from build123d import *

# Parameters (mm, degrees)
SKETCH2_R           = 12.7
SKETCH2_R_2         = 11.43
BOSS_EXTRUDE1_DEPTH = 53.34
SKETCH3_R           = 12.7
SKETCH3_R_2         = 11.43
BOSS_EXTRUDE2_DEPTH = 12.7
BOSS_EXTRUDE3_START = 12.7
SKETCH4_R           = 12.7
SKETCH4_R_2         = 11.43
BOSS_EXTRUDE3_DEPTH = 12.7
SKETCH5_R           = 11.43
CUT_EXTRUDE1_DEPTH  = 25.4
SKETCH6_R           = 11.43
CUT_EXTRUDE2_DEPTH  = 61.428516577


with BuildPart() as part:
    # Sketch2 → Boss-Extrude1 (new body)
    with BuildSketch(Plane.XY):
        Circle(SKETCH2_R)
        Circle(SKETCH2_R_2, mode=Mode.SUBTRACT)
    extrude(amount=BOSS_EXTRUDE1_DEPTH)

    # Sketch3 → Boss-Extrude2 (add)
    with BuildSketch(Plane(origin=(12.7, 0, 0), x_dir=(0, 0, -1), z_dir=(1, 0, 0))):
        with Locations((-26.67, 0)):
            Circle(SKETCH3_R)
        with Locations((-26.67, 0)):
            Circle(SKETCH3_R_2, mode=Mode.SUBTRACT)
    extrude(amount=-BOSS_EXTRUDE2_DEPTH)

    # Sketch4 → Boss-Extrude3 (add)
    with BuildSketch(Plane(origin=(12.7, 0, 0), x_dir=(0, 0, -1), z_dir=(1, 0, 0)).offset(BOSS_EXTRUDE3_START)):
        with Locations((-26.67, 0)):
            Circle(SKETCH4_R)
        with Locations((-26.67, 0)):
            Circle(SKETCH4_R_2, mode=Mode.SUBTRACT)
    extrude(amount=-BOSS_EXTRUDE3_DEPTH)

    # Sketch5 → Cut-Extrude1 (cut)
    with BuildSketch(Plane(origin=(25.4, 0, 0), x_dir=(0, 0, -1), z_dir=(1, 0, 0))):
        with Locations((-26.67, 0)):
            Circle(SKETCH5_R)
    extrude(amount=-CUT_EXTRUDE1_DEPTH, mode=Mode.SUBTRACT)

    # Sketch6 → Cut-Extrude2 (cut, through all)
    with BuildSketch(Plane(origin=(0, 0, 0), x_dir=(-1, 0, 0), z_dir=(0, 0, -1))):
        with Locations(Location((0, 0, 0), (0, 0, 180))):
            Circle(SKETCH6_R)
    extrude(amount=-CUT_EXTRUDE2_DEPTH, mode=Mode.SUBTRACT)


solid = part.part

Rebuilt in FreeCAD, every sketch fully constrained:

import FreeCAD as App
import Part
import Sketcher
Q = App.Units.Quantity

doc = App.newDocument("Part")
body = doc.addObject("PartDesign::Body", "Body")

# Sketch on XY plane
sketch1 = body.newObject("Sketcher::SketchObject", "Sketch")
sketch1.AttachmentSupport = (doc.getObject("XY_Plane"), [""])
sketch1.MapMode = "FlatFace"
sketch1.addGeometry([
    Part.Circle(App.Vector(0, 0, 0), App.Vector(0, 0, 1), 13),
    Part.Circle(App.Vector(0, 0, 0), App.Vector(0, 0, 1), 11),
], False)
sketch1.addConstraint([
    Sketcher.Constraint("Coincident", 0, 3, -1, 1),
    Sketcher.Constraint("Coincident", 1, 3, -1, 1),
    Sketcher.Constraint("Diameter", 0, Q("1 in")),
    Sketcher.Constraint("Diameter", 1, Q("0.9 in")),
])
pad1 = body.newObject("PartDesign::Pad", "Pad")
pad1.Profile = sketch1
pad1.Length = Q("2.1 in")

# Sketch on YZ plane
sketch2 = body.newObject("Sketcher::SketchObject", "Sketch001")
sketch2.AttachmentSupport = (doc.getObject("YZ_Plane"), [""])
sketch2.MapMode = "FlatFace"
sketch2.AttachmentOffset = App.Placement(App.Vector(0, 0, 0.5 * 25.4), App.Rotation())
sketch2.addGeometry([
    Part.Circle(App.Vector(0, 27, 0), App.Vector(0, 0, 1), 13),
    Part.Circle(App.Vector(0, 27, 0), App.Vector(0, 0, 1), 11),
], False)
sketch2.addConstraint([
    Sketcher.Constraint("Coincident", 1, 3, 0, 3),
    Sketcher.Constraint("PointOnObject", 0, 3, -2),
    Sketcher.Constraint("Diameter", 0, Q("1 in")),
    Sketcher.Constraint("Diameter", 1, Q("0.9 in")),
    Sketcher.Constraint("DistanceY", -1, 1, 0, 3, Q("1.05 in")),
])
pad2 = body.newObject("PartDesign::Pad", "Pad001")
pad2.Profile = sketch2
pad2.Length = Q("0.5 in")
pad2.Reversed = True

# Sketch on YZ plane
sketch3 = body.newObject("Sketcher::SketchObject", "Sketch002")
sketch3.AttachmentSupport = (doc.getObject("YZ_Plane"), [""])
sketch3.MapMode = "FlatFace"
sketch3.AttachmentOffset = App.Placement(App.Vector(0, 0, 1 * 25.4), App.Rotation())
sketch3.addGeometry([
    Part.Circle(App.Vector(0, 27, 0), App.Vector(0, 0, 1), 13),
    Part.Circle(App.Vector(0, 27, 0), App.Vector(0, 0, 1), 11),
], False)
sketch3.addConstraint([
    Sketcher.Constraint("Coincident", 1, 3, 0, 3),
    Sketcher.Constraint("PointOnObject", 0, 3, -2),
    Sketcher.Constraint("Diameter", 0, Q("1 in")),
    Sketcher.Constraint("Diameter", 1, Q("0.9 in")),
    Sketcher.Constraint("DistanceY", -1, 1, 0, 3, Q("1.05 in")),
])
pad3 = body.newObject("PartDesign::Pad", "Pad002")
pad3.Profile = sketch3
pad3.Length = Q("0.5 in")
pad3.Reversed = True

# Sketch on YZ plane
sketch4 = body.newObject("Sketcher::SketchObject", "Sketch003")
sketch4.AttachmentSupport = (doc.getObject("YZ_Plane"), [""])
sketch4.MapMode = "FlatFace"
sketch4.AttachmentOffset = App.Placement(App.Vector(0, 0, 1 * 25.4), App.Rotation())
sketch4.addGeometry(Part.Circle(App.Vector(0, 27, 0), App.Vector(0, 0, 1), 11), False)
sketch4.addConstraint([
    Sketcher.Constraint("PointOnObject", 0, 3, -2),
    Sketcher.Constraint("Diameter", 0, Q("0.9 in")),
    Sketcher.Constraint("DistanceY", -1, 1, 0, 3, Q("1.05 in")),
])
pocket1 = body.newObject("PartDesign::Pocket", "Pocket")
pocket1.Profile = sketch4
pocket1.Length = Q("1 in")

# Sketch on XY plane
sketch5 = body.newObject("Sketcher::SketchObject", "Sketch004")
sketch5.AttachmentSupport = (doc.getObject("XY_Plane"), [""])
sketch5.MapMode = "FlatFace"
sketch5.addGeometry(Part.Circle(App.Vector(0, 0, 0), App.Vector(0, 0, 1), 11), False)
sketch5.addConstraint([
    Sketcher.Constraint("Coincident", 0, 3, -1, 1),
    Sketcher.Constraint("Diameter", 0, Q("0.9 in")),
])
pocket2 = body.newObject("PartDesign::Pocket", "Pocket001")
pocket2.Profile = sketch5
pocket2.Type = "ThroughAll"
pocket2.Reversed = True

doc.recompute()
